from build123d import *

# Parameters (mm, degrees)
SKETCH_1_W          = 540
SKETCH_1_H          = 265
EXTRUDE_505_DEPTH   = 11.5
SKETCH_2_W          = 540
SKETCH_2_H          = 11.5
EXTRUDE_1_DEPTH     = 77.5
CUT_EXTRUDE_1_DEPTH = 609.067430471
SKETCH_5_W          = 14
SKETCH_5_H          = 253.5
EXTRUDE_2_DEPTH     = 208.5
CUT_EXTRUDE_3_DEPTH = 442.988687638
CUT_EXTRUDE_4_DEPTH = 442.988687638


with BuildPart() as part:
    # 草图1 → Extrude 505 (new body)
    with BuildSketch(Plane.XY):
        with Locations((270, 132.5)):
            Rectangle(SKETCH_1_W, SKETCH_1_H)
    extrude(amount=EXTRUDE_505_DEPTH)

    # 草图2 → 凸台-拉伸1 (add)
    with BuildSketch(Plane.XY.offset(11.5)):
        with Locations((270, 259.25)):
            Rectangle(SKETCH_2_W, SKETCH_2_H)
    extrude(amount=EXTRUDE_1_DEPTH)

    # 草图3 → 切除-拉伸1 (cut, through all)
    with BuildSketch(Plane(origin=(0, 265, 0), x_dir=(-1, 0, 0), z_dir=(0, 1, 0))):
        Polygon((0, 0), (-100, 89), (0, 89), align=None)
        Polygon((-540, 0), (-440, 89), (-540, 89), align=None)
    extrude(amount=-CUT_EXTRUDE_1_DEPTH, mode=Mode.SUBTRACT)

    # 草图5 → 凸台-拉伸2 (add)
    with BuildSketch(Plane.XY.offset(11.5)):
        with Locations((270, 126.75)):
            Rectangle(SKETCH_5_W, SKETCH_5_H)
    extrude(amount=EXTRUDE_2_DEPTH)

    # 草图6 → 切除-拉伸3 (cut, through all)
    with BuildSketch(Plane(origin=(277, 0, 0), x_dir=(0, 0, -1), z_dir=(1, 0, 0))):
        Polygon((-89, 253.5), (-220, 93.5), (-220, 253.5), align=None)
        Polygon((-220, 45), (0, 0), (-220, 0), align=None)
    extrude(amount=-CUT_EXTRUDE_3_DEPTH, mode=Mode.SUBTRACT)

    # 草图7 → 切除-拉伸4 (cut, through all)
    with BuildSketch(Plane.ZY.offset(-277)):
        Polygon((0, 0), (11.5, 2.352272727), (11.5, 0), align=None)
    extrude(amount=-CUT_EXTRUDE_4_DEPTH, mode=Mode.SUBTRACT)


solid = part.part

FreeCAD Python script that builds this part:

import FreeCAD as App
import Part
import Sketcher
from FreeCAD import Vector
Q = App.Units.Quantity

doc = App.newDocument("Part")
body = doc.addObject("PartDesign::Body", "Body")

sketch1 = body.newObject("Sketcher::SketchObject", "Sketch")
sketch1.AttachmentSupport = (doc.getObject("XY_Plane"), [""])
sketch1.MapMode = "FlatFace"
sketch1.addGeometry([
    Part.LineSegment(Vector(0, 265, 0), Vector(0, 0, 0)),
    Part.LineSegment(Vector(0, 0, 0), Vector(540, 0, 0)),
    Part.LineSegment(Vector(540, 0, 0), Vector(540, 265, 0)),
    Part.LineSegment(Vector(540, 265, 0), Vector(0, 265, 0)),
], False)
sketch1.addConstraint([
    Sketcher.Constraint("Coincident", 0, 2, 1, 1),
    Sketcher.Constraint("Coincident", 1, 2, 2, 1),
    Sketcher.Constraint("Coincident", 2, 2, 3, 1),
    Sketcher.Constraint("Coincident", 3, 2, 0, 1),
    Sketcher.Constraint("Vertical", 0),
    Sketcher.Constraint("Horizontal", 1),
    Sketcher.Constraint("Vertical", 2),
    Sketcher.Constraint("Horizontal", 3),
    Sketcher.Constraint("Coincident", 0, 2, -1, 1),
    Sketcher.Constraint("DistanceX", 1, 1, 1, 2, Q("540 mm")),
    Sketcher.Constraint("DistanceY", 0, 2, 0, 1, Q("265 mm")),
])
pad1 = body.newObject("PartDesign::Pad", "Pad")
pad1.Profile = sketch1
pad1.Length = 11.5

sketch2 = body.newObject("Sketcher::SketchObject", "Sketch001")
sketch2.AttachmentSupport = (doc.getObject("XY_Plane"), [""])
sketch2.MapMode = "FlatFace"
sketch2.AttachmentOffset = App.Placement(Vector(0, 0, 11.5), App.Rotation())
sketch2.addGeometry([
    Part.LineSegment(Vector(0, 265, 0), Vector(0, 254, 0)),
    Part.LineSegment(Vector(0, 254, 0), Vector(540, 254, 0)),
    Part.LineSegment(Vector(540, 254, 0), Vector(540, 265, 0)),
    Part.LineSegment(Vector(540, 265, 0), Vector(0, 265, 0)),
], False)
sketch2.addConstraint([
    Sketcher.Constraint("Coincident", 0, 2, 1, 1),
    Sketcher.Constraint("Coincident", 1, 2, 2, 1),
    Sketcher.Constraint("Coincident", 2, 2, 3, 1),
    Sketcher.Constraint("Coincident", 3, 2, 0, 1),
    Sketcher.Constraint("Vertical", 0),
    Sketcher.Constraint("Horizontal", 1),
    Sketcher.Constraint("Vertical", 2),
    Sketcher.Constraint("Horizontal", 3),
    Sketcher.Constraint("PointOnObject", 0, 2, -2),
    Sketcher.Constraint("DistanceX", 1, 1, 1, 2, Q("540 mm")),
    Sketcher.Constraint("DistanceY", 0, 2, 0, 1, Q("11.5 mm")),
    Sketcher.Constraint("DistanceY", -1, 1, 2, 2, Q("265 mm")),
])
pad2 = body.newObject("PartDesign::Pad", "Pad001")
pad2.Profile = sketch2
pad2.Length = 77.5

sketch3 = body.newObject("Sketcher::SketchObject", "Sketch002")
sketch3.AttachmentSupport = (doc.getObject("XZ_Plane"), [""])
sketch3.MapMode = "FlatFace"
sketch3.AttachmentOffset = App.Placement(Vector(0, 0, -265), App.Rotation())
sketch3.addGeometry([
    Part.LineSegment(Vector(100, 89, 0), Vector(0, 0, 0)),
    Part.LineSegment(Vector(0, 0, 0), Vector(0, 89, 0)),
    Part.LineSegment(Vector(0, 89, 0), Vector(100, 89, 0)),
    Part.LineSegment(Vector(540, 0, 0), Vector(440, 89, 0)),
    Part.LineSegment(Vector(440, 89, 0), Vector(540, 89, 0)),
    Part.LineSegment(Vector(540, 89, 0), Vector(540, 0, 0)),
], False)
sketch3.addConstraint([
    Sketcher.Constraint("Coincident", 0, 2, 1, 1),
    Sketcher.Constraint("Coincident", 1, 2, 2, 1),
    Sketcher.Constraint("Coincident", 2, 2, 0, 1),
    Sketcher.Constraint("Coincident", 3, 2, 4, 1),
    Sketcher.Constraint("Coincident", 4, 2, 5, 1),
    Sketcher.Constraint("Coincident", 5, 2, 3, 1),
    Sketcher.Constraint("Vertical", 1),
    Sketcher.Constraint("Horizontal", 2),
    Sketcher.Constraint("Horizontal", 4),
    Sketcher.Constraint("Vertical", 5),
    Sketcher.Constraint("Coincident", 0, 2, -1, 1),
    Sketcher.Constraint("PointOnObject", 5, 2, -1),
    Sketcher.Constraint("Horizontal", 2, 2, 3, 2),
    Sketcher.Constraint("Equal", 2, 4),
    Sketcher.Constraint("DistanceX", 2, 1, 2, 2, Q("100 mm")),
    Sketcher.Constraint("DistanceY", 1, 1, 1, 2, Q("89 mm")),
    Sketcher.Constraint("DistanceX", -1, 1, 3, 2, Q("440 mm")),
])
pocket1 = body.newObject("PartDesign::Pocket", "Pocket")
pocket1.Profile = sketch3
pocket1.Type = "ThroughAll"
pocket1.Reversed = True

sketch4 = body.newObject("Sketcher::SketchObject", "Sketch003")
sketch4.AttachmentSupport = (doc.getObject("XY_Plane"), [""])
sketch4.MapMode = "FlatFace"
sketch4.AttachmentOffset = App.Placement(Vector(0, 0, 11.5), App.Rotation())
sketch4.addGeometry([
    Part.LineSegment(Vector(263, 254, 0), Vector(263, 0, 0)),
    Part.LineSegment(Vector(263, 0, 0), Vector(277, 0, 0)),
    Part.LineSegment(Vector(277, 0, 0), Vector(277, 254, 0)),
    Part.LineSegment(Vector(277, 254, 0), Vector(263, 254, 0)),
], False)
sketch4.addConstraint([
    Sketcher.Constraint("Coincident", 0, 2, 1, 1),
    Sketcher.Constraint("Coincident", 1, 2, 2, 1),
    Sketcher.Constraint("Coincident", 2, 2, 3, 1),
    Sketcher.Constraint("Coincident", 3, 2, 0, 1),
    Sketcher.Constraint("Vertical", 0),
    Sketcher.Constraint("Horizontal", 1),
    Sketcher.Constraint("Vertical", 2),
    Sketcher.Constraint("Horizontal", 3),
    Sketcher.Constraint("PointOnObject", 0, 2, -1),
    Sketcher.Constraint("DistanceX", 1, 1, 1, 2, Q("14 mm")),
    Sketcher.Constraint("DistanceY", 0, 2, 0, 1, Q("253.5 mm")),
    Sketcher.Constraint("DistanceX", -1, 1, 0, 2, Q("263 mm")),
])
pad3 = body.newObject("PartDesign::Pad", "Pad002")
pad3.Profile = sketch4
pad3.Length = 208.5

sketch5 = body.newObject("Sketcher::SketchObject", "Sketch004")
sketch5.AttachmentSupport = (doc.getObject("YZ_Plane"), [""])
sketch5.MapMode = "FlatFace"
sketch5.AttachmentOffset = App.Placement(Vector(0, 0, 277), App.Rotation())
sketch5.addGeometry([
    Part.LineSegment(Vector(94, 220, 0), Vector(254, 89, 0)),
    Part.LineSegment(Vector(254, 89, 0), Vector(254, 220, 0)),
    Part.LineSegment(Vector(254, 220, 0), Vector(94, 220, 0)),
    Part.LineSegment(Vector(0, 0, 0), Vector(45, 220, 0)),
    Part.LineSegment(Vector(45, 220, 0), Vector(0, 220, 0)),
    Part.LineSegment(Vector(0, 220, 0), Vector(0, 0, 0)),
], False)
sketch5.addConstraint([
    Sketcher.Constraint("Coincident", 0, 2, 1, 1),
    Sketcher.Constraint("Coincident", 1, 2, 2, 1),
    Sketcher.Constraint("Coincident", 2, 2, 0, 1),
    Sketcher.Constraint("Coincident", 3, 2, 4, 1),
    Sketcher.Constraint("Coincident", 4, 2, 5, 1),
    Sketcher.Constraint("Coincident", 5, 2, 3, 1),
    Sketcher.Constraint("Vertical", 1),
    Sketcher.Constraint("Horizontal", 2),
    Sketcher.Constraint("Horizontal", 4),
    Sketcher.Constraint("Vertical", 5),
    Sketcher.Constraint("Coincident", 5, 2, -1, 1),
    Sketcher.Constraint("Horizontal", 2, 2, 3, 2),
    Sketcher.Constraint("DistanceX", 2, 2, 2, 1, Q("160 mm")),
    Sketcher.Constraint("DistanceX", 4, 2, 4, 1, Q("45 mm")),
    Sketcher.Constraint("DistanceY", 1, 1, 1, 2, Q("131 mm")),
    Sketcher.Constraint("DistanceY", 5, 2, 5, 1, Q("220 mm")),
    Sketcher.Constraint("DistanceX", -1, 1, 0, 2, Q("253.5 mm")),
])
pocket2 = body.newObject("PartDesign::Pocket", "Pocket001")
pocket2.Profile = sketch5
pocket2.Type = "ThroughAll"

sketch6 = body.newObject("Sketcher::SketchObject", "Sketch005")
sketch6.AttachmentSupport = (doc.getObject("YZ_Plane"), [""])
sketch6.MapMode = "FlatFace"
sketch6.AttachmentOffset = App.Placement(Vector(0, 0, 277), App.Rotation())
sketch6.addGeometry([
    Part.LineSegment(Vector(2.4, 11.5, 0), Vector(0, 0, 0)),
    Part.LineSegment(Vector(0, 0, 0), Vector(0, 11.5, 0)),
    Part.LineSegment(Vector(0, 11.5, 0), Vector(2.4, 11.5, 0)),
], False)
sketch6.addConstraint([
    Sketcher.Constraint("Coincident", 0, 2, 1, 1),
    Sketcher.Constraint("Coincident", 1, 2, 2, 1),
    Sketcher.Constraint("Coincident", 2, 2, 0, 1),
    Sketcher.Constraint("Vertical", 1),
    Sketcher.Constraint("Horizontal", 2),
    Sketcher.Constraint("Coincident", 0, 2, -1, 1),
    Sketcher.Constraint("DistanceY", 1, 1, 1, 2, Q("11.5 mm")),
    Sketcher.Constraint("Distance", 0, Q("11.738108 mm")),
])
pocket3 = body.newObject("PartDesign::Pocket", "Pocket002")
pocket3.Profile = sketch6
pocket3.Type = "ThroughAll"
pocket3.Reversed = True

doc.recompute()
